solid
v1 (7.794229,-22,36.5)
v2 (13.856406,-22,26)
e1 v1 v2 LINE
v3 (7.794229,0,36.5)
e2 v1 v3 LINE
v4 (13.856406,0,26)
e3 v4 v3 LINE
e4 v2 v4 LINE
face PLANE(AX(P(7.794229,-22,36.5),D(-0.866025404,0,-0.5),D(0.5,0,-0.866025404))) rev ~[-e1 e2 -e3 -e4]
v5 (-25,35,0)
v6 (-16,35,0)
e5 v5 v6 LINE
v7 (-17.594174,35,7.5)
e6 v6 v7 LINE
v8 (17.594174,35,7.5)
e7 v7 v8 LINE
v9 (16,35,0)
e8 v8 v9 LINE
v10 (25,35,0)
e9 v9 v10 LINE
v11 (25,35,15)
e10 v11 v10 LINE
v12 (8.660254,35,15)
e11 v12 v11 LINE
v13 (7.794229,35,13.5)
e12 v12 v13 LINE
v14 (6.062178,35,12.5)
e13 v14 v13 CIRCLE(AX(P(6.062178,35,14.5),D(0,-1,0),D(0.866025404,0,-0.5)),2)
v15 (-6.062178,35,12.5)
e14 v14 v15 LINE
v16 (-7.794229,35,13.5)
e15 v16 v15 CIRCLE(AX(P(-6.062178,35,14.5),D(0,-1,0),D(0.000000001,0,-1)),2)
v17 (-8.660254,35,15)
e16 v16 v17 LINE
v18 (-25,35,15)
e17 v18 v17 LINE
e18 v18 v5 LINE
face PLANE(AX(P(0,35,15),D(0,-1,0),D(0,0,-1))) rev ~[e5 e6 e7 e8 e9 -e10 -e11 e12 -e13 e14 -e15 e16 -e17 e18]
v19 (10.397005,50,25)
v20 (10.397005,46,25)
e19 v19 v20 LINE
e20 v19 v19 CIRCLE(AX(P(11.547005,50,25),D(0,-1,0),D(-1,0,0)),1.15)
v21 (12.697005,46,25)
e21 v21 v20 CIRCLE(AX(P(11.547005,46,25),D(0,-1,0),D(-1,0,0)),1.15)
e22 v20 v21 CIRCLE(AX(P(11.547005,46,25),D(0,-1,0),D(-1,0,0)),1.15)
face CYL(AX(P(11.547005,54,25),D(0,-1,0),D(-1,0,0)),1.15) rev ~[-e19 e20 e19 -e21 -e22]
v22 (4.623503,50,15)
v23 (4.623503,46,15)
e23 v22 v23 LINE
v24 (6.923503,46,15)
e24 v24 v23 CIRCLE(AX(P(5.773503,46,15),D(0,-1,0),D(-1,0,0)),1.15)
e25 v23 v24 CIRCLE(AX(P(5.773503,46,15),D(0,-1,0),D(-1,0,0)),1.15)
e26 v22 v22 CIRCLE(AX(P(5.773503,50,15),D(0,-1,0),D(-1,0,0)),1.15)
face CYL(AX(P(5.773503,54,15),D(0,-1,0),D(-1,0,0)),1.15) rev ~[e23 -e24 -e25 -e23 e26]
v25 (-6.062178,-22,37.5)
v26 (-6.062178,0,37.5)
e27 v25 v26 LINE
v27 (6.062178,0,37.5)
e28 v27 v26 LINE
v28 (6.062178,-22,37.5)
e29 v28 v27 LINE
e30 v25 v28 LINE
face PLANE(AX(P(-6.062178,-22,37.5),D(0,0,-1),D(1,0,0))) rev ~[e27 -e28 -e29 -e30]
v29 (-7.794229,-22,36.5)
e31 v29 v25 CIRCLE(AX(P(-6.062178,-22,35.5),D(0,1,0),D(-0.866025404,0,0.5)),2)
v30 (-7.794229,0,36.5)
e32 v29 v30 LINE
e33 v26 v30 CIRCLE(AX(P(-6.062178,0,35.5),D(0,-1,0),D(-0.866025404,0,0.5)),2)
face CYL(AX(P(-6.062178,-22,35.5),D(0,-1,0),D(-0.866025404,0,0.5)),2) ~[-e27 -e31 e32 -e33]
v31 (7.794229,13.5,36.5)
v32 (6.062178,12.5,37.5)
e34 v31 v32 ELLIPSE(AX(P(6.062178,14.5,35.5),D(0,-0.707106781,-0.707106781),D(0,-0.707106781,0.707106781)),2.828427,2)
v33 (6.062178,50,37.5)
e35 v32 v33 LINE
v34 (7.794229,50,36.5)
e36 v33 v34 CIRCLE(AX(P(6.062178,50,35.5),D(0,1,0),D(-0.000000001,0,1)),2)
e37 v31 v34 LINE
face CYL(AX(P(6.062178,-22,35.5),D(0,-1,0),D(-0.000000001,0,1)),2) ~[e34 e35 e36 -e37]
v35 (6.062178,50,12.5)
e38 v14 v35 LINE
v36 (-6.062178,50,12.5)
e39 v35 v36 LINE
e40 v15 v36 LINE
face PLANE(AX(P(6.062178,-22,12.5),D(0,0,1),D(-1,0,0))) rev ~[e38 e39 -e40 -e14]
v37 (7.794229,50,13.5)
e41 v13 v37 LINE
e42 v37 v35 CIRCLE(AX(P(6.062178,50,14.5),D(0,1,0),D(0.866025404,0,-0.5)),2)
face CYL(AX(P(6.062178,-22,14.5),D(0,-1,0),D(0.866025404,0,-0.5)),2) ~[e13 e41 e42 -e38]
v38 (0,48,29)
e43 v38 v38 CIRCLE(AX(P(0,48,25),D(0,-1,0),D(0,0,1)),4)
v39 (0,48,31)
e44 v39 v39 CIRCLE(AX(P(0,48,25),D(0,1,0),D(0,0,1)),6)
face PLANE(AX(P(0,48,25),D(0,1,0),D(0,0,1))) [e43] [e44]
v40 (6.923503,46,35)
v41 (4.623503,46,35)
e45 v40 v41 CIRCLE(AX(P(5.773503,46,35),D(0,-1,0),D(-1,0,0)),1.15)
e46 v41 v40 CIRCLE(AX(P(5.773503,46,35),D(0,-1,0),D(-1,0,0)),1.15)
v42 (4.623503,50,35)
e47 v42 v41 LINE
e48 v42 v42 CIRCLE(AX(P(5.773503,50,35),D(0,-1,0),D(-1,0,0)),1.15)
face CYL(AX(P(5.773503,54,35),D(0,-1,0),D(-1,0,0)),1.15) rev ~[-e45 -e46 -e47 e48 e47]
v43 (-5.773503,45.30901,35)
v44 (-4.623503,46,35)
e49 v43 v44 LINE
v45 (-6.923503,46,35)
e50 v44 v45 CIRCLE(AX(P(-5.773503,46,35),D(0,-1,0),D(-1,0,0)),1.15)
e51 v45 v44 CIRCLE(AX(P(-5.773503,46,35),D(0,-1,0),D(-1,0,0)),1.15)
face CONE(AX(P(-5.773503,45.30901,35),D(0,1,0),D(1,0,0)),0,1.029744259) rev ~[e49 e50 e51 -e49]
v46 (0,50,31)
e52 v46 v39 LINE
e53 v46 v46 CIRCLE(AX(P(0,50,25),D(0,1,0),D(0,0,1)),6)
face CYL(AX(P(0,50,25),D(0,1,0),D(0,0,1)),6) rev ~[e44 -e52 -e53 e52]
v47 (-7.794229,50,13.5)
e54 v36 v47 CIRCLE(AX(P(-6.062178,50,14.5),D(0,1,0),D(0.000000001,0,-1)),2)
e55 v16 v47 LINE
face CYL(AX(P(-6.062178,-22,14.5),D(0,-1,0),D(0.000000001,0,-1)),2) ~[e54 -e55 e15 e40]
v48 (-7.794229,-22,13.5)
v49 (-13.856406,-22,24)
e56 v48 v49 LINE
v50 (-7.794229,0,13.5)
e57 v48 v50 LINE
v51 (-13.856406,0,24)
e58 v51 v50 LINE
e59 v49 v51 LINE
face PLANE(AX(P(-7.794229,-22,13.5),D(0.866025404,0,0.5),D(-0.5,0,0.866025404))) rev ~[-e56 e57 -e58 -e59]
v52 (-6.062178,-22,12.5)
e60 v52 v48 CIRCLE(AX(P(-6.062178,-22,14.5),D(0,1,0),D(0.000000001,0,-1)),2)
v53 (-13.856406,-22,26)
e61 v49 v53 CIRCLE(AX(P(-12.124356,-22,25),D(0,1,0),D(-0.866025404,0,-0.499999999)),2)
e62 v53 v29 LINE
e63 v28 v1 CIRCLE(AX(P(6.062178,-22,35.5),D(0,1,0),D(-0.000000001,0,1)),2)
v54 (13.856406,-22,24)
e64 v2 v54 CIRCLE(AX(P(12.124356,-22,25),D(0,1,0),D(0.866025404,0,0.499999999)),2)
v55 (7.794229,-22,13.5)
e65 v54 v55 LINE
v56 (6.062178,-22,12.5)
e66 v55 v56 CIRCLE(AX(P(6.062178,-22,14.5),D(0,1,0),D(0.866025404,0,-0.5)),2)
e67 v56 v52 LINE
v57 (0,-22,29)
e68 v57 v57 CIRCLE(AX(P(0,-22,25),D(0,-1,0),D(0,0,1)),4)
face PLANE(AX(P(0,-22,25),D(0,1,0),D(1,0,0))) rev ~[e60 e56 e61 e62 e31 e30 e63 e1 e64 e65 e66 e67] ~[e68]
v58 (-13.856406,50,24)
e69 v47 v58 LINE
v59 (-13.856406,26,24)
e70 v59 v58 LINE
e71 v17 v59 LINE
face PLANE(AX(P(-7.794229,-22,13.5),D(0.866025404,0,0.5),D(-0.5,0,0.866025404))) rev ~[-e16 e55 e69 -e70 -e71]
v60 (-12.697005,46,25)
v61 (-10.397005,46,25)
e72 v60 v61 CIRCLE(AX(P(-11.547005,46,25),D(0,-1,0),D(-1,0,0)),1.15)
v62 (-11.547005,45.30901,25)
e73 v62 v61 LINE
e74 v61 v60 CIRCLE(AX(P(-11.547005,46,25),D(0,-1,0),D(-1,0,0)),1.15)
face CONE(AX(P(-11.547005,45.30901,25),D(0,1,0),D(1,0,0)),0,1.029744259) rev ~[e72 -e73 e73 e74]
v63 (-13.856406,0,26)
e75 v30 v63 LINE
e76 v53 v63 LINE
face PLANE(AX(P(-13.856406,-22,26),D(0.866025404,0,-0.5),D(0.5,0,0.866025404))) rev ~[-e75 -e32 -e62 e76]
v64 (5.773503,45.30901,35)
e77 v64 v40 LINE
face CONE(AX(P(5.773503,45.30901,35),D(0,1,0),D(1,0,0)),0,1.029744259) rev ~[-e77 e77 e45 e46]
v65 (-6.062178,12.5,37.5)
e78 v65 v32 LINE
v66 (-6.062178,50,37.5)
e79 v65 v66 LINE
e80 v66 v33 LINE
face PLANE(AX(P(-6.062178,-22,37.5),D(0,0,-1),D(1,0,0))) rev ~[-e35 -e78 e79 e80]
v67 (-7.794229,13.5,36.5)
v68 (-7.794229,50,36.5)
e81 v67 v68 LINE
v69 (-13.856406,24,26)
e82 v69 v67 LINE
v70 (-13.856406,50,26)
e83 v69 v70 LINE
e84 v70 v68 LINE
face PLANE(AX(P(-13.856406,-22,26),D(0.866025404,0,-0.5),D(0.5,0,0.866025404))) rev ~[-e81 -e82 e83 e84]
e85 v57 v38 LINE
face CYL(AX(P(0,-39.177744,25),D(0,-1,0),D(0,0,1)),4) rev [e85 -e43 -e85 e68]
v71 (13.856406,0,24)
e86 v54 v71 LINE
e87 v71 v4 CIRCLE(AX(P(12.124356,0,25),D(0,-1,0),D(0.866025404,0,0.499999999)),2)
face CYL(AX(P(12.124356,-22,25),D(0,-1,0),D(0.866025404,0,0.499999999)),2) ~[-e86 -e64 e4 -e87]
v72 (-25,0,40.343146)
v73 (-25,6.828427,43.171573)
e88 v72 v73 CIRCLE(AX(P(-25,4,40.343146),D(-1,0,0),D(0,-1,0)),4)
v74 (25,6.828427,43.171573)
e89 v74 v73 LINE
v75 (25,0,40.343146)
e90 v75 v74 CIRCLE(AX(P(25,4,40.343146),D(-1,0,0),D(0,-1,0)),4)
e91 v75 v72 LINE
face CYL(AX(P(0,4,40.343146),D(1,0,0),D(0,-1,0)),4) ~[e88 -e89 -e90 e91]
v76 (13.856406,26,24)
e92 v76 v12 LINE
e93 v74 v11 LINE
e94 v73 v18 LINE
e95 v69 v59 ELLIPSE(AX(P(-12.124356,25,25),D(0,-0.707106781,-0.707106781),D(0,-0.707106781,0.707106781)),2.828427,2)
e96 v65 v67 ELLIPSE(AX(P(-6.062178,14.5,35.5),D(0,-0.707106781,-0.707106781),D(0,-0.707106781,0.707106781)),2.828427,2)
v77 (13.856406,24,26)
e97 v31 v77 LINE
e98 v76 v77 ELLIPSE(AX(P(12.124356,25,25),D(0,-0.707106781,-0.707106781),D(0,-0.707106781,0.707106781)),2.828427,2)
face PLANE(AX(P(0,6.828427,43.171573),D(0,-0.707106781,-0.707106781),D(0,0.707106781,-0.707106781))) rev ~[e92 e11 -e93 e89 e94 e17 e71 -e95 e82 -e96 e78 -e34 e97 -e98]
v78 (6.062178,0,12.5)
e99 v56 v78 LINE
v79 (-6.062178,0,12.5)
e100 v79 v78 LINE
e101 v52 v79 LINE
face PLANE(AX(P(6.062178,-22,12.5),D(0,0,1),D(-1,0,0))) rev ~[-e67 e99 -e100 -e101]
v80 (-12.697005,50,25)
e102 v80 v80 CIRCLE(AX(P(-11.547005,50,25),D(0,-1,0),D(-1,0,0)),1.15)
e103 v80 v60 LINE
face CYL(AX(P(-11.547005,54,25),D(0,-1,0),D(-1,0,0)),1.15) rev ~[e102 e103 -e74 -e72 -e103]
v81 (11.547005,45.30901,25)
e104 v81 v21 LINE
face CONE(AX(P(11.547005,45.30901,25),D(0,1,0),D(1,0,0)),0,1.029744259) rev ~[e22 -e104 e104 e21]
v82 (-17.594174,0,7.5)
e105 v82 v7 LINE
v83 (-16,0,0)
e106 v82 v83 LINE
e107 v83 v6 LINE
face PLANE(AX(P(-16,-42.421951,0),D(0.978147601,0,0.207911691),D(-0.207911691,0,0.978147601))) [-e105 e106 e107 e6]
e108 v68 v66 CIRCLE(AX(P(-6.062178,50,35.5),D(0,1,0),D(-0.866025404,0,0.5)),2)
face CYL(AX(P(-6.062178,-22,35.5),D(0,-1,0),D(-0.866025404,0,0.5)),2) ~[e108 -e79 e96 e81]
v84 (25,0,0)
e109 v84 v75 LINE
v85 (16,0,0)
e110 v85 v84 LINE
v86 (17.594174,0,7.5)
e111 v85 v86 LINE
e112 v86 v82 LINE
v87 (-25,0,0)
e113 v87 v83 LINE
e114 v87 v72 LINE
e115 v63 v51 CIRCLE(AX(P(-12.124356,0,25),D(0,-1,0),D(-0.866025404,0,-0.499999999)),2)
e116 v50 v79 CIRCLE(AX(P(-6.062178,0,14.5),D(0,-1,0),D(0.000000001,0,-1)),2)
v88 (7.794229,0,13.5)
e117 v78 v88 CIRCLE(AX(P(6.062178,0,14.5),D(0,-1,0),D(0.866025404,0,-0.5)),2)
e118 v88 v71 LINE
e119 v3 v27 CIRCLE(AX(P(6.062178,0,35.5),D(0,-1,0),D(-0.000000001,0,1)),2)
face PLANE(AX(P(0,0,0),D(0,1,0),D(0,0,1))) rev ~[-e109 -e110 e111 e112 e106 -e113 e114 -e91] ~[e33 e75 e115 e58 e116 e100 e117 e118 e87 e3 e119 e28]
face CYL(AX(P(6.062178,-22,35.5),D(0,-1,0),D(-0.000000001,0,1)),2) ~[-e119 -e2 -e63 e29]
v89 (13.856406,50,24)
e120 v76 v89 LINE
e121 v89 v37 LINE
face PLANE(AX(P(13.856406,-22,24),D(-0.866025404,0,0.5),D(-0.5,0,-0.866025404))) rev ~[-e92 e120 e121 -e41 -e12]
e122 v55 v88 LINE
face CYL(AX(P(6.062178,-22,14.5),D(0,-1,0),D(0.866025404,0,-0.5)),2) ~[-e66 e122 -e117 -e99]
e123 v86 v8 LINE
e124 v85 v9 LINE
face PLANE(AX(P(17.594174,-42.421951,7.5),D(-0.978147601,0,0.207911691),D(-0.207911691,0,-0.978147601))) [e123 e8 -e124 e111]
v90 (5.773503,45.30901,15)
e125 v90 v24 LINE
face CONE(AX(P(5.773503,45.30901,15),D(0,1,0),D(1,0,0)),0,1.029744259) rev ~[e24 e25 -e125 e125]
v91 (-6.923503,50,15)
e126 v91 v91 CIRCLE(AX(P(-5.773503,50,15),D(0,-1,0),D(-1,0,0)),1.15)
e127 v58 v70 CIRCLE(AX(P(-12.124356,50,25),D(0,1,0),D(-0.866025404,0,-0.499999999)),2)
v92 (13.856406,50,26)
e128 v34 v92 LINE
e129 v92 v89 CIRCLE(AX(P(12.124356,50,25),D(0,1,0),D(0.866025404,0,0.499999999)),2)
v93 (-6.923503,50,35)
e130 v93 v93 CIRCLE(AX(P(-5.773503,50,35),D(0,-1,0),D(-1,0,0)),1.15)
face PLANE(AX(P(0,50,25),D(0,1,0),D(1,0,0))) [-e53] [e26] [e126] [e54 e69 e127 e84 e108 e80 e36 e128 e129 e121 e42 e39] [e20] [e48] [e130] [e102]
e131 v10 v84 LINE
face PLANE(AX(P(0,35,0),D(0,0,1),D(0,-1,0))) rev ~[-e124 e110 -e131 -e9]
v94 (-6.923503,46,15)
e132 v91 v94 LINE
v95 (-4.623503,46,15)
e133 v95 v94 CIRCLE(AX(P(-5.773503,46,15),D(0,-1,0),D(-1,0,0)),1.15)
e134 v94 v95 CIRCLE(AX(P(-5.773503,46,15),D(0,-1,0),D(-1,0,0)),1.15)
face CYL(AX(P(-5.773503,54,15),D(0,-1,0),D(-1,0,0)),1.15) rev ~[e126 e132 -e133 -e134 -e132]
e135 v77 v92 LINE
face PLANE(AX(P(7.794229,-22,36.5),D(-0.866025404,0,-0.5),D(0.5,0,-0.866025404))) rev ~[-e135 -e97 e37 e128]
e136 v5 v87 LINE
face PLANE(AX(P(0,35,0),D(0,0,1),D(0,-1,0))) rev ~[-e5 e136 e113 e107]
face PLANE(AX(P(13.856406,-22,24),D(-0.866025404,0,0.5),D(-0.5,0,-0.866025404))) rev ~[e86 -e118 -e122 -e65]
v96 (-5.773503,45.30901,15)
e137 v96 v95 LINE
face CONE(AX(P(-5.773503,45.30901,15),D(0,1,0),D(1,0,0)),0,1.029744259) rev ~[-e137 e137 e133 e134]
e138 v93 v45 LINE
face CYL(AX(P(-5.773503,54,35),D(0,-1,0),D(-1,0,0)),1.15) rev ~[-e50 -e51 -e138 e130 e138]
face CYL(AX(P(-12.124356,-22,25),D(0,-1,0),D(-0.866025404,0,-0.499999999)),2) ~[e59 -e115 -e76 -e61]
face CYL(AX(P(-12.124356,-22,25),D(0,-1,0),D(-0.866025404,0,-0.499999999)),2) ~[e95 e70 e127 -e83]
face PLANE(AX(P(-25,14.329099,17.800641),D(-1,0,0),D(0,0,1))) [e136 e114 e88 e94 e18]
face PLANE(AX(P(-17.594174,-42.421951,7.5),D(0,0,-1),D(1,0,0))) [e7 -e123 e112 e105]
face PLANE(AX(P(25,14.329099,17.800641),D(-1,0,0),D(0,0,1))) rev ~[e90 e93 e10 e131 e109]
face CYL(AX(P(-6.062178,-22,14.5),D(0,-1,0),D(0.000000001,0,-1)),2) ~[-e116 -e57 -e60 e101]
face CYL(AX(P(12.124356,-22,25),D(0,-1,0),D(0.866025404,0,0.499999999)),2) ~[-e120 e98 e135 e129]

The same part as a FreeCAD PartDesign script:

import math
import FreeCAD as App
import Part
import Sketcher

V = App.Vector
Q = App.Units.Quantity

doc = App.newDocument("Part")
body = doc.addObject("PartDesign::Body", "Body")

# Sketch on YZ plane
sketch1 = body.newObject("Sketcher::SketchObject", "Sketch")
sketch1.AttachmentSupport = (doc.getObject("YZ_Plane"), [""])
sketch1.MapMode = "FlatFace"
sketch1.addGeometry([
    Part.LineSegment(V(0, 40.3, 0), V(0, 0, 0)),  # 0
    Part.LineSegment(V(0, 0, 0), V(35, 0, 0)),  # 1
    Part.LineSegment(V(35, 0, 0), V(35, 15, 0)),  # 2
    Part.LineSegment(V(35, 15, 0), V(6.8, 43.2, 0)),  # 3
    Part.ArcOfCircle(Part.Circle(V(4, 40.3, 0), V(0, 0, 1), 4), math.radians(45), math.radians(180)),  # 4
], False)
sketch1.addConstraint([
    Sketcher.Constraint("Coincident", 0, 2, 1, 1),
    Sketcher.Constraint("Coincident", 1, 2, 2, 1),
    Sketcher.Constraint("Coincident", 2, 2, 3, 1),
    Sketcher.Constraint("Tangent", 3, 2, 4, 1),
    Sketcher.Constraint("Tangent", 4, 2, 0, 1),
    Sketcher.Constraint("Vertical", 0),
    Sketcher.Constraint("Horizontal", 1),
    Sketcher.Constraint("Vertical", 2),
    Sketcher.Constraint("Coincident", 0, 2, -1, 1),
    Sketcher.Constraint("Radius", 4, 4.0),
    Sketcher.Constraint("DistanceX", 1, 1, 1, 2, 35.0),
    Sketcher.Constraint("DistanceY", 2, 1, 2, 2, 15.0),
    Sketcher.Constraint("Angle", 3, Q("135 deg")),
])
pad1 = body.newObject("PartDesign::Pad", "Pad")
pad1.Profile = sketch1
pad1.Length = 50
pad1.Midplane = True

# Sketch on XZ plane
sketch2 = body.newObject("Sketcher::SketchObject", "Sketch001")
sketch2.AttachmentSupport = (doc.getObject("XZ_Plane"), [""])
sketch2.MapMode = "FlatFace"
sketch2.addGeometry([
    Part.LineSegment(V(-7.8, 13.5, 0), V(-13.9, 24, 0)),  # 0
    Part.ArcOfCircle(Part.Circle(V(-12.1, 25, 0), V(0, 0, 1), 2), math.radians(150), math.radians(210)),  # 1
    Part.LineSegment(V(-13.9, 26, 0), V(-7.8, 36.5, 0)),  # 2
    Part.ArcOfCircle(Part.Circle(V(-6.1, 35.5, 0), V(0, 0, 1), 2), math.radians(90), math.radians(150)),  # 3
    Part.LineSegment(V(-6.1, 37.5, 0), V(6.1, 37.5, 0)),  # 4
    Part.ArcOfCircle(Part.Circle(V(6.1, 35.5, 0), V(0, 0, 1), 2), math.radians(30), math.radians(90)),  # 5
    Part.LineSegment(V(7.8, 36.5, 0), V(13.9, 26, 0)),  # 6
    Part.ArcOfCircle(Part.Circle(V(12.1, 25, 0), V(0, 0, 1), 2), math.radians(-30), math.radians(30)),  # 7
    Part.LineSegment(V(13.9, 24, 0), V(7.8, 13.5, 0)),  # 8
    Part.ArcOfCircle(Part.Circle(V(6.1, 14.5, 0), V(0, 0, 1), 2), math.radians(-90), math.radians(-30)),  # 9
    Part.LineSegment(V(6.1, 12.5, 0), V(-6.1, 12.5, 0)),  # 10
    Part.ArcOfCircle(Part.Circle(V(-6.1, 14.5, 0), V(0, 0, 1), 2), math.radians(-150), math.radians(-90)),  # 11
], False)
sketch2.addConstraint([
    Sketcher.Constraint("Tangent", 0, 2, 1, 2),
    Sketcher.Constraint("Tangent", 1, 1, 2, 1),
    Sketcher.Constraint("Tangent", 2, 2, 3, 2),
    Sketcher.Constraint("Tangent", 3, 1, 4, 1),
    Sketcher.Constraint("Tangent", 4, 2, 5, 2),
    Sketcher.Constraint("Tangent", 5, 1, 6, 1),
    Sketcher.Constraint("Tangent", 6, 2, 7, 2),
    Sketcher.Constraint("Tangent", 7, 1, 8, 1),
    Sketcher.Constraint("Tangent", 8, 2, 9, 2),
    Sketcher.Constraint("Tangent", 9, 1, 10, 1),
    Sketcher.Constraint("Tangent", 10, 2, 11, 2),
    Sketcher.Constraint("Tangent", 11, 1, 0, 1),
    Sketcher.Constraint("Horizontal", 4),
    Sketcher.Constraint("Horizontal", 10),
    Sketcher.Constraint("Equal", 1, 3),
    Sketcher.Constraint("Equal", 3, 5),
    Sketcher.Constraint("Equal", 5, 7),
    Sketcher.Constraint("Equal", 7, 9),
    Sketcher.Constraint("Equal", 9, 11),
    Sketcher.Constraint("Symmetric", 1, 3, 7, 3, -2),
    Sketcher.Constraint("Parallel", 0, 6),
    Sketcher.Constraint("Parallel", 2, 8),
    Sketcher.Constraint("Horizontal", 2, 2, 5, 1),
    Sketcher.Constraint("Vertical", 5, 3, 9, 3),
    Sketcher.Constraint("Radius", 1, 2.0),
    Sketcher.Constraint("Angle", 0, Q("120 deg")),
    Sketcher.Constraint("DistanceY", -1, 1, 1, 3, 25.0),
    Sketcher.Constraint("DistanceY", 9, 3, 5, 3, 21.0),
    Sketcher.Constraint("DistanceX", 4, 1, 4, 2, 12.124356),
])
pad2 = body.newObject("PartDesign::Pad", "Pad001")
pad2.Profile = sketch2
pad2.Type = "TwoLengths"
pad2.Length = 50
pad2.Length2 = 22
pad2.Reversed = True

# Sketch on XZ plane
sketch3 = body.newObject("Sketcher::SketchObject", "Sketch002")
sketch3.AttachmentSupport = (doc.getObject("XZ_Plane"), [""])
sketch3.MapMode = "FlatFace"
sketch3.AttachmentOffset = App.Placement(V(0, 0, -50), App.Rotation())
sketch3.addGeometry(Part.Circle(V(0, 25, 0), V(0, 0, 1), 4), False)
sketch3.addConstraint([
    Sketcher.Constraint("PointOnObject", 0, 3, -2),
    Sketcher.Constraint("Diameter", 0, 8.0),
    Sketcher.Constraint("DistanceY", -1, 1, 0, 3, 25.0),
])
pocket1 = body.newObject("PartDesign::Pocket", "Pocket")
pocket1.Profile = sketch3
pocket1.Type = "ThroughAll"
pocket1.Midplane = True

# Sketch on XZ plane
sketch4 = body.newObject("Sketcher::SketchObject", "Sketch003")
sketch4.AttachmentSupport = (doc.getObject("XZ_Plane"), [""])
sketch4.MapMode = "FlatFace"
sketch4.AttachmentOffset = App.Placement(V(0, 0, -50), App.Rotation())
sketch4.addGeometry(Part.Circle(V(0, 25, 0), V(0, 0, 1), 6), False)
sketch4.addConstraint([
    Sketcher.Constraint("PointOnObject", 0, 3, -2),
    Sketcher.Constraint("Diameter", 0, 12.0),
    Sketcher.Constraint("DistanceY", -1, 1, 0, 3, 25.0),
])
pocket2 = body.newObject("PartDesign::Pocket", "Pocket001")
pocket2.Profile = sketch4
pocket2.Length = 2
pocket2.Reversed = True

# Sketch on XZ plane
sketch5 = body.newObject("Sketcher::SketchObject", "Sketch004")
sketch5.AttachmentSupport = (doc.getObject("XZ_Plane"), [""])
sketch5.MapMode = "FlatFace"
sketch5.AttachmentOffset = App.Placement(V(0, 0, -35), App.Rotation())
sketch5.addGeometry([
    Part.LineSegment(V(-18, 8, 0), V(18, 8, 0)),
    Part.LineSegment(V(18, 8, 0), V(16, 0, 0)),
    Part.LineSegment(V(16, 0, 0), V(-16, 0, 0)),
    Part.LineSegment(V(-16, 0, 0), V(-18, 8, 0)),
], False)
sketch5.addConstraint([
    Sketcher.Constraint("Coincident", 0, 2, 1, 1),
    Sketcher.Constraint("Coincident", 1, 2, 2, 1),
    Sketcher.Constraint("Coincident", 2, 2, 3, 1),
    Sketcher.Constraint("Coincident", 3, 2, 0, 1),
    Sketcher.Constraint("Horizontal", 0),
    Sketcher.Constraint("Horizontal", 2),
    Sketcher.Constraint("Symmetric", 1, 2, 2, 2, -1, 1),
    Sketcher.Constraint("Equal", 1, 3),
    Sketcher.Constraint("DistanceX", 2, 2, 2, 1, 32.0),
    Sketcher.Constraint("Angle", 1, Q("-102 deg")),
    Sketcher.Constraint("DistanceY", -1, 1, 0, 2, 7.5),
])
pocket3 = body.newObject("PartDesign::Pocket", "Pocket002")
pocket3.Profile = sketch5
pocket3.Type = "ThroughAll"
pocket3.Midplane = True

# Sketch on XZ plane
sketch6 = body.newObject("Sketcher::SketchObject", "Sketch005")
sketch6.AttachmentSupport = (doc.getObject("XZ_Plane"), [""])
sketch6.MapMode = "FlatFace"
sketch6.AttachmentOffset = App.Placement(V(0, 0, -50), App.Rotation())
sketch6.addGeometry([
    Part.Circle(V(-11.5, 25, 0), V(0, 0, 1), 1.1),  # 0
    Part.Circle(V(-5.8, 15, 0), V(0, 0, 1), 1.1),  # 1
    Part.Circle(V(5.8, 15, 0), V(0, 0, 1), 1.1),  # 2
    Part.Circle(V(11.5, 25, 0), V(0, 0, 1), 1.1),  # 3
    Part.Circle(V(5.8, 35, 0), V(0, 0, 1), 1.1),  # 4
    Part.Circle(V(-5.8, 35, 0), V(0, 0, 1), 1.1),  # 5
], False)
sketch6.addConstraint([
    Sketcher.Constraint("Equal", 0, 1),
    Sketcher.Constraint("Equal", 1, 2),
    Sketcher.Constraint("Equal", 2, 3),
    Sketcher.Constraint("Equal", 3, 4),
    Sketcher.Constraint("Equal", 4, 5),
    Sketcher.Constraint("Symmetric", 1, 3, 2, 3, -2),
    Sketcher.Constraint("Symmetric", 0, 3, 3, 3, -2),
    Sketcher.Constraint("Symmetric", 4, 3, 5, 3, -2),
    Sketcher.Constraint("Vertical", 2, 3, 4, 3),
    Sketcher.Constraint("Diameter", 0, 2.3),
    Sketcher.Constraint("DistanceY", -1, 1, 0, 3, 25.0),
    Sketcher.Constraint("DistanceY", -1, 1, 1, 3, 15.0),
    Sketcher.Constraint("DistanceY", -1, 1, 4, 3, 35.0),
    Sketcher.Constraint("DistanceX", 0, 3, 2, 3, 17.320508),
    Sketcher.Constraint("DistanceX", 0, 3, 3, 3, 23.094011),
])
doc.recompute()
hole = body.newObject("PartDesign::Hole", "Hole")
hole.Profile = sketch6
hole.ThreadType = "None"
hole.Diameter = 2.3
hole.DepthType = "Dimension"
hole.Depth = 4
hole.DrillPoint = "Angled"
hole.DrillPointAngle = 118
hole.Reversed = True

doc.recompute()
